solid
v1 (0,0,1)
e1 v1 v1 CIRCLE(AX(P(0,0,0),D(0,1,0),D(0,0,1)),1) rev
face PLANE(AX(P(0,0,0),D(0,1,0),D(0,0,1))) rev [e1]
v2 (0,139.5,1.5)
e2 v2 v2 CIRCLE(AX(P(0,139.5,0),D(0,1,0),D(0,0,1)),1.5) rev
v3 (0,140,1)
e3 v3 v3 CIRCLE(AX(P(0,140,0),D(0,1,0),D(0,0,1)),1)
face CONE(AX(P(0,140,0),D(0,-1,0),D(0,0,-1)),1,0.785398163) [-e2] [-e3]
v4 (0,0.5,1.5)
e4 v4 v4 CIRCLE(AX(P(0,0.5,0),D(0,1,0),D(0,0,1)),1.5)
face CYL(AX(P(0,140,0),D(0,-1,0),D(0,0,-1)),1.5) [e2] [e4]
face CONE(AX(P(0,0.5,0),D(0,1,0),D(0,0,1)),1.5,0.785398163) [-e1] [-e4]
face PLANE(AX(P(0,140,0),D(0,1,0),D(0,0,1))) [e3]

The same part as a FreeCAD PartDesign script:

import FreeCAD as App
import Part
import Sketcher
from FreeCAD import Vector


def edges_at(feature, points):
    """Names of the edges that pass closest to the given points."""
    edges = feature.Shape.Edges
    near = lambda p: min(range(len(edges)), key=lambda i: edges[i].distToShape(Part.Vertex(*p))[0])
    return sorted({f"Edge{near(p) + 1}" for p in points})

doc = App.newDocument("Part")
body = doc.addObject("PartDesign::Body", "Body")

# Sketch on XZ plane
sketch1 = doc.addObject("Sketcher::SketchObject", "Sketch")
body.addObject(sketch1)
sketch1.AttachmentSupport = (doc.XZ_Plane, [""])
sketch1.MapMode = "FlatFace"
sketch1.addGeometry(Part.Circle(Vector(0, 0, 0), Vector(0, 0, 1), 1.5), False)
sketch1.addConstraint([
    Sketcher.Constraint("Coincident", 0, 3, -1, 1),
    Sketcher.Constraint("Diameter", 0, 3.0),
])
pad1 = doc.addObject("PartDesign::Pad", "Pad")
body.addObject(pad1)
pad1.Profile = sketch1
pad1.Length = 140
pad1.Reversed = True
doc.recompute()

chamfer = doc.addObject("PartDesign::Chamfer", "Chamfer")
body.addObject(chamfer)
chamfer.Base = (pad1, edges_at(pad1, [(-1.5, 0, 0), (-1.5, 140, 0)]))
chamfer.Size = 0.5

doc.recompute()
